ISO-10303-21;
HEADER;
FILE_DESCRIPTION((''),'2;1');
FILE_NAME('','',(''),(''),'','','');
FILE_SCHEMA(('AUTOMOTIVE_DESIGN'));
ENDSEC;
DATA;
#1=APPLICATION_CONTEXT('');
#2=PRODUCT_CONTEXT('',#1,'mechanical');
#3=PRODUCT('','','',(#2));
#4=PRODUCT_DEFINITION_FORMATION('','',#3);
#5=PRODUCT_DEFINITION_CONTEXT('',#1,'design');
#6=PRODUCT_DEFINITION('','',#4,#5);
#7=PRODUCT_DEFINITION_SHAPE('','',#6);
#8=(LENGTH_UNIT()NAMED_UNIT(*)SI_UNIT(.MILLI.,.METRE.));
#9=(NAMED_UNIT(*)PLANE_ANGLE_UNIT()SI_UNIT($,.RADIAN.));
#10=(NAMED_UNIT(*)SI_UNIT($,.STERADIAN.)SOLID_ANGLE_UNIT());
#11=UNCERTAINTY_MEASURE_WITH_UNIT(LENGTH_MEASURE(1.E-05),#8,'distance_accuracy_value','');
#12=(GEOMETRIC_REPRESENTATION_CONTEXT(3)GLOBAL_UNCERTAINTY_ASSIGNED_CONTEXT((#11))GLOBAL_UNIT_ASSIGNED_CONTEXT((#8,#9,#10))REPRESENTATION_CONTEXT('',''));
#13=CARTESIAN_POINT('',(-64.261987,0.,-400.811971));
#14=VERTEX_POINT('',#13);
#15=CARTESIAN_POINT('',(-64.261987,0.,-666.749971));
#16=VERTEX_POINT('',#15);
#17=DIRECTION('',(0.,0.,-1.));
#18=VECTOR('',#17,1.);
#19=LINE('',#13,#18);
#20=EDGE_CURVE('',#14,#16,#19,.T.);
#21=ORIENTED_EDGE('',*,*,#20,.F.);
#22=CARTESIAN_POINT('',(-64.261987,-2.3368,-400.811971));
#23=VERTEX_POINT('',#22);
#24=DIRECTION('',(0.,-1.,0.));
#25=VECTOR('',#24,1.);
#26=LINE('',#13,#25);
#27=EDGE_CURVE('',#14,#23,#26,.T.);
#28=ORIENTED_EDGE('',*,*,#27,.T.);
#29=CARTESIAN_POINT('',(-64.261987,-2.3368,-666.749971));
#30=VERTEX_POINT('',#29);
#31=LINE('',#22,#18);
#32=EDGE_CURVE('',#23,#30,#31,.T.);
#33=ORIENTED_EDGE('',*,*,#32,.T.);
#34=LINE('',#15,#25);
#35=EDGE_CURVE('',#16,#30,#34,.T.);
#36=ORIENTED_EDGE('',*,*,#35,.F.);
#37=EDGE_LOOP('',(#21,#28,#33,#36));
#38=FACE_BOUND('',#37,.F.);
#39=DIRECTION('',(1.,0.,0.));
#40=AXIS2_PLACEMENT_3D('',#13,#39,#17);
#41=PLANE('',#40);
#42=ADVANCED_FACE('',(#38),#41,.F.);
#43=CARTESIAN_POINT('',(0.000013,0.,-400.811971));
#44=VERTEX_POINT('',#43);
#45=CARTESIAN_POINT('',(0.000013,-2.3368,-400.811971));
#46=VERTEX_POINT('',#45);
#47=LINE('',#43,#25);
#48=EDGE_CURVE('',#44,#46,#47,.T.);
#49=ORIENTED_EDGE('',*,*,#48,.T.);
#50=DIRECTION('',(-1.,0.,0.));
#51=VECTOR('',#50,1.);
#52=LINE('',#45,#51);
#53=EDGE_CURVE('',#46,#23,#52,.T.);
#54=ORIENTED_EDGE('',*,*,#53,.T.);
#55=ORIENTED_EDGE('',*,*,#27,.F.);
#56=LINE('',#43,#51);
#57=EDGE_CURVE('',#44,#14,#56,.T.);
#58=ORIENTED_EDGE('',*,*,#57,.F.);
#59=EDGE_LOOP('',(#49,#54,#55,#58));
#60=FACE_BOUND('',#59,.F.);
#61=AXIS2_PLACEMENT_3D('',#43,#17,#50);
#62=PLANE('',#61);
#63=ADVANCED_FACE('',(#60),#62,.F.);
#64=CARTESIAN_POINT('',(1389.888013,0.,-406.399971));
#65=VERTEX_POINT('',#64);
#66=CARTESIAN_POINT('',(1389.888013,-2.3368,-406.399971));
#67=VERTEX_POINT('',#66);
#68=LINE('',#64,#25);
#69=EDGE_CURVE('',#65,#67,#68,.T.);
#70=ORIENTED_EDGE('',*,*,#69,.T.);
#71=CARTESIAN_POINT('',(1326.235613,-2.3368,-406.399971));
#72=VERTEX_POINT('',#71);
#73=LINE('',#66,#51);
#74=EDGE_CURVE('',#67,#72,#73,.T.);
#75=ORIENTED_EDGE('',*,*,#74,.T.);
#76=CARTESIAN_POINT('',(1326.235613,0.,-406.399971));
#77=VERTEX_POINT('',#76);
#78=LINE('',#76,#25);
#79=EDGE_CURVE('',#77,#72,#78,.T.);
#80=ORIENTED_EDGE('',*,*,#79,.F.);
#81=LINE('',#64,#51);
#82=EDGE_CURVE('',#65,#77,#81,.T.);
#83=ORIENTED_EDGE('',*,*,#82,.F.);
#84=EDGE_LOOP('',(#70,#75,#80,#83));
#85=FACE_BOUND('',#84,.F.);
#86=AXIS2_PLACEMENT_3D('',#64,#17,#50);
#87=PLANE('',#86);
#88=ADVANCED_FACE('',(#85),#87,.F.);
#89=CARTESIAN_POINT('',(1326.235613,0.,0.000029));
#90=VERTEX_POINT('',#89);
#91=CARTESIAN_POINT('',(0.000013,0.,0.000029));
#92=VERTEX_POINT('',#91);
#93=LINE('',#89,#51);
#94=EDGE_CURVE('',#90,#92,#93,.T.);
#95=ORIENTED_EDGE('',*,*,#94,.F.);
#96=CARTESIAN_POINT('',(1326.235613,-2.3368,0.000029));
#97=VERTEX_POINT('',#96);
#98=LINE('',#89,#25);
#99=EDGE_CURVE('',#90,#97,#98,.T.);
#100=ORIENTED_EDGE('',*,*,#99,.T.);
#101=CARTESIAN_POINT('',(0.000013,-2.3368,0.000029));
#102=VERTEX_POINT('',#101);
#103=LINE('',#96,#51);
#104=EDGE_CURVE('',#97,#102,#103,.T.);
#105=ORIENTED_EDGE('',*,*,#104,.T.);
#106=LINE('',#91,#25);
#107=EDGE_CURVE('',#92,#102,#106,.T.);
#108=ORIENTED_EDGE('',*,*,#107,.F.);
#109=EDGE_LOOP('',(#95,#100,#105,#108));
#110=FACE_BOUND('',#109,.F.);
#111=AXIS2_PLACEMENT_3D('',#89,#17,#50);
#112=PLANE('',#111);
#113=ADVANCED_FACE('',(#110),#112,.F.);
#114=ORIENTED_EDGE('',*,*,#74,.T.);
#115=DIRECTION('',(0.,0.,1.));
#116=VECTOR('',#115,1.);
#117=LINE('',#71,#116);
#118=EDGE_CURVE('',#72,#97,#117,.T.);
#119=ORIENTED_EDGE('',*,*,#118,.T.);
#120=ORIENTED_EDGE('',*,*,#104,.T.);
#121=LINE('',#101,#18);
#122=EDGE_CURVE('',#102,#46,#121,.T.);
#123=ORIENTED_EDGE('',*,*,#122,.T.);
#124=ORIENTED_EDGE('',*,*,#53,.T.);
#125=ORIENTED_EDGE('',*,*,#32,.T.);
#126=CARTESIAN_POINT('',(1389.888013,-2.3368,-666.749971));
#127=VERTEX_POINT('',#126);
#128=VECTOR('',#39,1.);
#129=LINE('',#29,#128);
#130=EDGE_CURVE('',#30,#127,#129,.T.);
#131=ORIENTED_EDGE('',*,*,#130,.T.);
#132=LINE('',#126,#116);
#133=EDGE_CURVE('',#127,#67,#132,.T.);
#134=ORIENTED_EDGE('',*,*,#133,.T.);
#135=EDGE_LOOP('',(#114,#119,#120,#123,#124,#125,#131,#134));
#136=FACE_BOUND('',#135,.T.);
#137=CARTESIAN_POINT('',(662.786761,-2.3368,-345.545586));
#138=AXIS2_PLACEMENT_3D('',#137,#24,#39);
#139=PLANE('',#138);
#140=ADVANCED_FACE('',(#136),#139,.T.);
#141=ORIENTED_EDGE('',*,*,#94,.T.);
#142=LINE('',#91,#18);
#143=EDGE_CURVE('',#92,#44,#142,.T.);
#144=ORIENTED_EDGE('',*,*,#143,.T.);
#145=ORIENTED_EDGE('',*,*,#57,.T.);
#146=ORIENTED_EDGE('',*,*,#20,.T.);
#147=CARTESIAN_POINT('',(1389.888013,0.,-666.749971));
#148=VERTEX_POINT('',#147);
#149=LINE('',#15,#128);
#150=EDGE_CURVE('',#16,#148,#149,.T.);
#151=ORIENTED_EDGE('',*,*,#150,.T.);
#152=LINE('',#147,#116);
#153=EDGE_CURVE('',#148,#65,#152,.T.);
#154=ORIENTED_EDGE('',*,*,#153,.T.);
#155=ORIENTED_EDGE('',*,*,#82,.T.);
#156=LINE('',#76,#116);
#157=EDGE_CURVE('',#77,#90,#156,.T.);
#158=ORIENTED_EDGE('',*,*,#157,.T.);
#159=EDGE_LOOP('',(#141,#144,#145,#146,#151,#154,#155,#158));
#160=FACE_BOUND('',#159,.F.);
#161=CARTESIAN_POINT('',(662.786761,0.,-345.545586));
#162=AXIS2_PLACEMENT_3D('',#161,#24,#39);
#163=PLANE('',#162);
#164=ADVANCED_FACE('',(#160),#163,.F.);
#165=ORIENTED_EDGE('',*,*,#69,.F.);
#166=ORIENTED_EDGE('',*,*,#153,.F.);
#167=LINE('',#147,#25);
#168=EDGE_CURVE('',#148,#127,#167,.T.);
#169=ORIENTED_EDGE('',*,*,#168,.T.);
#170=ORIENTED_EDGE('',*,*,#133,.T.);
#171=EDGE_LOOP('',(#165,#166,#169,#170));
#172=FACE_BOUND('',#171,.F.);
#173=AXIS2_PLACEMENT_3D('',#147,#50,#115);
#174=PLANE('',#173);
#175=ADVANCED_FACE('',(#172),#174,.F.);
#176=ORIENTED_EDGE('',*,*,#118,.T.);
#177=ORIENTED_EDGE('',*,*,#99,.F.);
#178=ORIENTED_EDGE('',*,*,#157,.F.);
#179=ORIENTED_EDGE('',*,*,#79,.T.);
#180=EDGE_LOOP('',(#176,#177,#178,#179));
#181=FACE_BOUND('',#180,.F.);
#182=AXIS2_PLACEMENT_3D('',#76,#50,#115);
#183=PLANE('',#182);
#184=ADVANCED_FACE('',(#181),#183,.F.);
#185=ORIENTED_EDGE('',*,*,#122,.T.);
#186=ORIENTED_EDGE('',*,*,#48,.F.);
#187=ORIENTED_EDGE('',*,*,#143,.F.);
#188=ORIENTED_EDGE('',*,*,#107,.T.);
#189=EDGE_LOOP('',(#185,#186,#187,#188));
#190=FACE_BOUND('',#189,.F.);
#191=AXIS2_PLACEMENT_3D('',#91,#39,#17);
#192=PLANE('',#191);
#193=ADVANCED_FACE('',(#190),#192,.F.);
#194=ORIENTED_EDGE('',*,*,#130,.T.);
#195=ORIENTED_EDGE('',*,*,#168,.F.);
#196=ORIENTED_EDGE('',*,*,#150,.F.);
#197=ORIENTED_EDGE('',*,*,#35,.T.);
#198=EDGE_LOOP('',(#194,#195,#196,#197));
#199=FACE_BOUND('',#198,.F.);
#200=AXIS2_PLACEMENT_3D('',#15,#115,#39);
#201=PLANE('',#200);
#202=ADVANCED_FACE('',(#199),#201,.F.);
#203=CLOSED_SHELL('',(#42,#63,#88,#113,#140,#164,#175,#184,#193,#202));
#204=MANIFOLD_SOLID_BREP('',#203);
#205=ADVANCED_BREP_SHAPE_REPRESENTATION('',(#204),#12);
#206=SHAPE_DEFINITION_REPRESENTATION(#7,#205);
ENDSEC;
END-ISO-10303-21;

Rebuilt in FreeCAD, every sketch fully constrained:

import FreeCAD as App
import Part
import Sketcher

V = App.Vector
Q = App.Units.Quantity

doc = App.newDocument("Part")
params = doc.addObject("Spreadsheet::Sheet", "Params")
for row, (alias, value) in enumerate([
    ("sketch1_height", "16 in"),
    ("sketch1_width", "2.53 in"),
    ("sketch1_width2", "57.25 in"),
    ("sketch1_height2", "15.78 in"),
    ("sketch1_height3", "10.47 in"),
    ("pad1_length", "0.092 in"),
], start=1):
    params.set(f"A{row}", alias)
    params.set(f"B{row}", "=" + value)
    params.setAlias(f"B{row}", alias)

body = doc.addObject("PartDesign::Body", "Body")

sketch1 = body.newObject("Sketcher::SketchObject", "Sketch")
sketch1.AttachmentSupport = (doc.getObject("XZ_Plane"), [""])
sketch1.MapMode = "FlatFace"
sketch1.addGeometry([
    Part.LineSegment(V(1326, 0, 0), V(0, 0, 0)),
    Part.LineSegment(V(0, 0, 0), V(0, -401, 0)),
    Part.LineSegment(V(0, -401, 0), V(-64, -401, 0)),
    Part.LineSegment(V(-64, -401, 0), V(-64, -667, 0)),
    Part.LineSegment(V(-64, -667, 0), V(1390, -667, 0)),
    Part.LineSegment(V(1390, -667, 0), V(1390, -406, 0)),
    Part.LineSegment(V(1390, -406, 0), V(1326, -406, 0)),
    Part.LineSegment(V(1326, -406, 0), V(1326, 0, 0)),
], False)
sketch1.addConstraint([
    Sketcher.Constraint("Coincident", 0, 2, 1, 1),
    Sketcher.Constraint("Coincident", 1, 2, 2, 1),
    Sketcher.Constraint("Coincident", 2, 2, 3, 1),
    Sketcher.Constraint("Coincident", 3, 2, 4, 1),
    Sketcher.Constraint("Coincident", 4, 2, 5, 1),
    Sketcher.Constraint("Coincident", 5, 2, 6, 1),
    Sketcher.Constraint("Coincident", 6, 2, 7, 1),
    Sketcher.Constraint("Coincident", 7, 2, 0, 1),
    Sketcher.Constraint("Horizontal", 0),
    Sketcher.Constraint("Vertical", 1),
    Sketcher.Constraint("Horizontal", 2),
    Sketcher.Constraint("Vertical", 3),
    Sketcher.Constraint("Horizontal", 4),
    Sketcher.Constraint("Vertical", 5),
    Sketcher.Constraint("Horizontal", 6),
    Sketcher.Constraint("Vertical", 7),
    Sketcher.Constraint("DistanceY", 7, 1, 7, 2, Q("16 in")),
    Sketcher.Constraint("DistanceX", 2, 2, 2, 1, Q("2.53 in")),
    Sketcher.Constraint("DistanceX", 4, 1, 4, 2, Q("57.25 in")),
    Sketcher.Constraint("DistanceY", 1, 2, 1, 1, Q("15.78 in")),
    Sketcher.Constraint("DistanceY", 3, 2, 3, 1, Q("10.47 in")),
    Sketcher.Constraint("DistanceX", 0, 2, 0, 1, Q("52.214 in")),
    Sketcher.Constraint("DistanceY", 1, 2, -1, 1, Q("400.811971 mm")),
    Sketcher.Constraint("DistanceX", 2, 2, -1, 1, Q("64.261987 mm")),
])
sketch1.setExpression("Constraints[16]", "Params.sketch1_height")
sketch1.setExpression("Constraints[17]", "Params.sketch1_width")
sketch1.setExpression("Constraints[18]", "Params.sketch1_width2")
sketch1.setExpression("Constraints[19]", "Params.sketch1_height2")
sketch1.setExpression("Constraints[20]", "Params.sketch1_height3")
pad1 = body.newObject("PartDesign::Pad", "Pad")
pad1.Profile = sketch1
pad1.setExpression("Length", "Params.pad1_length")

doc.recompute()
